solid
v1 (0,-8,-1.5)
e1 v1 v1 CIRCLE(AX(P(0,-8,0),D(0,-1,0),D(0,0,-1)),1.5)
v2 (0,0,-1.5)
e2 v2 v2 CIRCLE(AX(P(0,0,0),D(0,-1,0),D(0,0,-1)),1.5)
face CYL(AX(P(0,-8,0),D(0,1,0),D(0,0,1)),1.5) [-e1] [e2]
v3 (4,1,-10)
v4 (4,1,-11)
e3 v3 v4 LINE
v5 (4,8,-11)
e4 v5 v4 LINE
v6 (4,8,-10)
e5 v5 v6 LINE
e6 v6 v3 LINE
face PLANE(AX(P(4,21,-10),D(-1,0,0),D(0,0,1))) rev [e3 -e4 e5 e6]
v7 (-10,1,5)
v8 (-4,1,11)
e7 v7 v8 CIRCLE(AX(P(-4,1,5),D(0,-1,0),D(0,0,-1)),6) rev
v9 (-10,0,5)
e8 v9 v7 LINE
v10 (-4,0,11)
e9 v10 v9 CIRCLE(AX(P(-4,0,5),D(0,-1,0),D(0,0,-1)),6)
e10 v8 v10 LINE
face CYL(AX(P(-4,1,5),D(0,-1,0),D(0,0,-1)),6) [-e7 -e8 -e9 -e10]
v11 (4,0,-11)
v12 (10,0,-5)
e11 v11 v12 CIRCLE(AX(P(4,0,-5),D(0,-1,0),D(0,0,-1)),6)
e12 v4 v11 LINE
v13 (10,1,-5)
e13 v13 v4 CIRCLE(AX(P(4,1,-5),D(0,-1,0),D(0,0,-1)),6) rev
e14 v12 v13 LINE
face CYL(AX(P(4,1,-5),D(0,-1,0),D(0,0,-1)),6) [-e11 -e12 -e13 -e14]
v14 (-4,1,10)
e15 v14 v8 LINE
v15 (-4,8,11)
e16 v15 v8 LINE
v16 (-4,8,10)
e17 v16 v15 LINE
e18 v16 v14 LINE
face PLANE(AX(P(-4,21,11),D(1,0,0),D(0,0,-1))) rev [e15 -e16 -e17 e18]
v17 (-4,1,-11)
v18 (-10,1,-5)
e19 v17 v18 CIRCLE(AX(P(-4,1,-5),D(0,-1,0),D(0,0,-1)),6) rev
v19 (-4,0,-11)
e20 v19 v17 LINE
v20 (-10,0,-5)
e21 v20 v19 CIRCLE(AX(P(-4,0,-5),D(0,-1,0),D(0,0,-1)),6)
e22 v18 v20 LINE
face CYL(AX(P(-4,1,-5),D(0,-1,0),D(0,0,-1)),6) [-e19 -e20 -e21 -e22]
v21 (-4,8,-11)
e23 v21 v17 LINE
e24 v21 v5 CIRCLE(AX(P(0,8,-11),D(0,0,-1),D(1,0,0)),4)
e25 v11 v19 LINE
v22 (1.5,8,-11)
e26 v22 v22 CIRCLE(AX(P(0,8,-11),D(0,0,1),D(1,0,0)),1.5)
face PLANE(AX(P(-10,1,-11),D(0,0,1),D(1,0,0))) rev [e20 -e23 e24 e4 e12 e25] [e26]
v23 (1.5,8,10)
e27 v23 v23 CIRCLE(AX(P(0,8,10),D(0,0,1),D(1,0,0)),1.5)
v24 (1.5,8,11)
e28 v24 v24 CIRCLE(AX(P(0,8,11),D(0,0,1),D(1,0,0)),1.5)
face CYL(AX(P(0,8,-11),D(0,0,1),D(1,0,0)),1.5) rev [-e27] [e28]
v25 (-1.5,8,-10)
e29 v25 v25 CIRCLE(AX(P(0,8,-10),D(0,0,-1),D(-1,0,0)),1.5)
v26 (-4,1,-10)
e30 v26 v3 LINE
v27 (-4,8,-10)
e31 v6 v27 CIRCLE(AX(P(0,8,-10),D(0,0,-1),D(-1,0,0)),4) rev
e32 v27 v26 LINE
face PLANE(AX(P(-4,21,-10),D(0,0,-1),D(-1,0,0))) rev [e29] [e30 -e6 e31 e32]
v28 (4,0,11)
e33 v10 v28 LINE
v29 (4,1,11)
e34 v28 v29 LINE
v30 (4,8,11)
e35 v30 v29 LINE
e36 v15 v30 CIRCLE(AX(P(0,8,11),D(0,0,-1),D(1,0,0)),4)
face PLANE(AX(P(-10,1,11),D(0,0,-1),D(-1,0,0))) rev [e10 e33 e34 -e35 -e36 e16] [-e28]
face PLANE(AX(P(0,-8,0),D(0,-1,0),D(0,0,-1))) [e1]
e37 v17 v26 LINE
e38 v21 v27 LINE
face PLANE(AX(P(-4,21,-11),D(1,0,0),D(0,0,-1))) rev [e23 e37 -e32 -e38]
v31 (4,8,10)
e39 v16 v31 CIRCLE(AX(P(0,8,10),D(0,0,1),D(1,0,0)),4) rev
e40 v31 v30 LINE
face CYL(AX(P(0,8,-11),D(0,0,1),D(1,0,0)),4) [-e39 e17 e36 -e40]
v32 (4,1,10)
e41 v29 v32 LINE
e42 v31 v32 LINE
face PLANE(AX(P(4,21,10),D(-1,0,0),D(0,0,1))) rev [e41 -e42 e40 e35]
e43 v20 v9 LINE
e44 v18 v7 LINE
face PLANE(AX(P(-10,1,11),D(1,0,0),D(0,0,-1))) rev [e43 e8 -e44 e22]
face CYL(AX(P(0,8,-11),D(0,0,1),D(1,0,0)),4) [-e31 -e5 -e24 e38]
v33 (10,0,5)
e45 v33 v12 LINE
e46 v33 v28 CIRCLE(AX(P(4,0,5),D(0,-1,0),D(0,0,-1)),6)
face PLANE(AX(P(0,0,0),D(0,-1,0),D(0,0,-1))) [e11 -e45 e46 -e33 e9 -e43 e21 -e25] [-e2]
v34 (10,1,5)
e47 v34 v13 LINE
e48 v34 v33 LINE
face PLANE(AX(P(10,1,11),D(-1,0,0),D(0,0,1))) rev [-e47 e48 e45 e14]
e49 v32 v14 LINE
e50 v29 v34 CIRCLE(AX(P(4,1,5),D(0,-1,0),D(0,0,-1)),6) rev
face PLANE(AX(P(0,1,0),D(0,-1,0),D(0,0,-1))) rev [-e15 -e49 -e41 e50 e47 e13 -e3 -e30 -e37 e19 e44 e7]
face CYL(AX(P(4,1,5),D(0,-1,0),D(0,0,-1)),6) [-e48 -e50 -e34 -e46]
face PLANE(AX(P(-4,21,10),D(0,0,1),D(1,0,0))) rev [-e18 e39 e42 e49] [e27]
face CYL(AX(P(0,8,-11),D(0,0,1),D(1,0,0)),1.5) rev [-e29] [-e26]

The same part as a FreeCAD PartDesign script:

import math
import FreeCAD as App
import Part
import Sketcher

V = App.Vector


def edges_at(feature, points):
    """Names of the edges that pass closest to the given points."""
    edges = feature.Shape.Edges
    near = lambda p: min(range(len(edges)), key=lambda i: edges[i].distToShape(Part.Vertex(*p))[0])
    return sorted({f"Edge{near(p) + 1}" for p in points})

doc = App.newDocument("Part")
body = doc.addObject("PartDesign::Body", "Body")

# Sketch on XZ plane
sketch1 = body.newObject("Sketcher::SketchObject", "Sketch")
sketch1.AttachmentSupport = (doc.getObject("XZ_Plane"), [""])
sketch1.MapMode = "FlatFace"
sketch1.addGeometry(Part.LineSegment(V(-10, -11, 0), V(-10, 11, 0)), False)
sketch1.addGeometry(Part.LineSegment(V(-10, 11, 0), V(10, 11, 0)), False)
sketch1.addGeometry(Part.LineSegment(V(10, 11, 0), V(10, -11, 0)), False)
sketch1.addGeometry(Part.LineSegment(V(10, -11, 0), V(-10, -11, 0)), False)
sketch1.addConstraint(Sketcher.Constraint("Coincident", 0, 2, 1, 1))
sketch1.addConstraint(Sketcher.Constraint("Coincident", 1, 2, 2, 1))
sketch1.addConstraint(Sketcher.Constraint("Coincident", 2, 2, 3, 1))
sketch1.addConstraint(Sketcher.Constraint("Coincident", 3, 2, 0, 1))
sketch1.addConstraint(Sketcher.Constraint("Vertical", 0))
sketch1.addConstraint(Sketcher.Constraint("Horizontal", 1))
sketch1.addConstraint(Sketcher.Constraint("Vertical", 2))
sketch1.addConstraint(Sketcher.Constraint("Horizontal", 3))
sketch1.addConstraint(Sketcher.Constraint("Symmetric", 0, 2, 2, 2, -1, 1))
sketch1.addConstraint(Sketcher.Constraint("DistanceX", 1, 1, 1, 2, 20.0))
sketch1.addConstraint(Sketcher.Constraint("DistanceY", 0, 1, 0, 2, 22.0))
pad1 = body.newObject("PartDesign::Pad", "Pad")
pad1.Profile = sketch1
pad1.Length = 1
pad1.Reversed = True

# Sketch on XZ plane
sketch2 = body.newObject("Sketcher::SketchObject", "Sketch001")
sketch2.AttachmentSupport = (doc.getObject("XZ_Plane"), [""])
sketch2.MapMode = "FlatFace"
sketch2.AttachmentOffset = App.Placement(V(0, 0, -1), App.Rotation())
sketch2.addGeometry(Part.LineSegment(V(-4, 10, 0), V(-4, 11, 0)), False)
sketch2.addGeometry(Part.LineSegment(V(-4, 11, 0), V(4, 11, 0)), False)
sketch2.addGeometry(Part.LineSegment(V(4, 11, 0), V(4, 10, 0)), False)
sketch2.addGeometry(Part.LineSegment(V(4, 10, 0), V(-4, 10, 0)), False)
sketch2.addGeometry(Part.LineSegment(V(-4, -11, 0), V(-4, -10, 0)), False)
sketch2.addGeometry(Part.LineSegment(V(-4, -10, 0), V(4, -10, 0)), False)
sketch2.addGeometry(Part.LineSegment(V(4, -10, 0), V(4, -11, 0)), False)
sketch2.addGeometry(Part.LineSegment(V(4, -11, 0), V(-4, -11, 0)), False)
sketch2.addConstraint(Sketcher.Constraint("Coincident", 0, 2, 1, 1))
sketch2.addConstraint(Sketcher.Constraint("Coincident", 1, 2, 2, 1))
sketch2.addConstraint(Sketcher.Constraint("Coincident", 2, 2, 3, 1))
sketch2.addConstraint(Sketcher.Constraint("Coincident", 3, 2, 0, 1))
sketch2.addConstraint(Sketcher.Constraint("Coincident", 4, 2, 5, 1))
sketch2.addConstraint(Sketcher.Constraint("Coincident", 5, 2, 6, 1))
sketch2.addConstraint(Sketcher.Constraint("Coincident", 6, 2, 7, 1))
sketch2.addConstraint(Sketcher.Constraint("Coincident", 7, 2, 4, 1))
sketch2.addConstraint(Sketcher.Constraint("Vertical", 0))
sketch2.addConstraint(Sketcher.Constraint("Horizontal", 1))
sketch2.addConstraint(Sketcher.Constraint("Vertical", 2))
sketch2.addConstraint(Sketcher.Constraint("Horizontal", 3))
sketch2.addConstraint(Sketcher.Constraint("Vertical", 4))
sketch2.addConstraint(Sketcher.Constraint("Horizontal", 5))
sketch2.addConstraint(Sketcher.Constraint("Vertical", 6))
sketch2.addConstraint(Sketcher.Constraint("Horizontal", 7))
sketch2.addConstraint(Sketcher.Constraint("Symmetric", 2, 2, 4, 2, -1, 1))
sketch2.addConstraint(Sketcher.Constraint("Symmetric", 0, 2, 6, 2, -1, 1))
sketch2.addConstraint(Sketcher.Constraint("Vertical", 3, 2, 4, 2))
sketch2.addConstraint(Sketcher.Constraint("DistanceX", 1, 1, 1, 2, 8.0))
sketch2.addConstraint(Sketcher.Constraint("DistanceY", 0, 1, 0, 2, 1.0))
sketch2.addConstraint(Sketcher.Constraint("DistanceY", -1, 1, 0, 2, 11.0))
pad2 = body.newObject("PartDesign::Pad", "Pad001")
pad2.Profile = sketch2
pad2.Length = 20
pad2.Reversed = True

# Sketch on XY plane
sketch3 = body.newObject("Sketcher::SketchObject", "Sketch002")
sketch3.AttachmentSupport = (doc.getObject("XY_Plane"), [""])
sketch3.MapMode = "FlatFace"
sketch3.AttachmentOffset = App.Placement(V(0, 0, 11), App.Rotation())
sketch3.addGeometry(Part.Circle(V(0, 8, 0), V(0, 0, 1), 1.5), False)
sketch3.addGeometry(Part.LineSegment(V(-13.1, 8, 0), V(-4, 8, 0)), False)
sketch3.addGeometry(Part.ArcOfCircle(Part.Circle(V(0, 8, 0), V(0, 0, 1), 4), math.radians(0), math.radians(180)), False)
sketch3.addGeometry(Part.LineSegment(V(4, 8, 0), V(15.5, 8, 0)), False)
sketch3.addGeometry(Part.LineSegment(V(15.5, 8, 0), V(15.5, 28.6, 0)), False)
sketch3.addGeometry(Part.LineSegment(V(15.5, 28.6, 0), V(-13.1, 28.6, 0)), False)
sketch3.addGeometry(Part.LineSegment(V(-13.1, 28.6, 0), V(-13.1, 8, 0)), False)
sketch3.addConstraint(Sketcher.Constraint("Coincident", 1, 2, 2, 2))
sketch3.addConstraint(Sketcher.Constraint("Coincident", 2, 1, 3, 1))
sketch3.addConstraint(Sketcher.Constraint("Coincident", 3, 2, 4, 1))
sketch3.addConstraint(Sketcher.Constraint("Coincident", 4, 2, 5, 1))
sketch3.addConstraint(Sketcher.Constraint("Coincident", 5, 2, 6, 1))
sketch3.addConstraint(Sketcher.Constraint("Coincident", 6, 2, 1, 1))
sketch3.addConstraint(Sketcher.Constraint("Horizontal", 1))
sketch3.addConstraint(Sketcher.Constraint("Horizontal", 3))
sketch3.addConstraint(Sketcher.Constraint("Vertical", 4))
sketch3.addConstraint(Sketcher.Constraint("Horizontal", 5))
sketch3.addConstraint(Sketcher.Constraint("Vertical", 6))
sketch3.addConstraint(Sketcher.Constraint("Coincident", 2, 3, 0, 3))
sketch3.addConstraint(Sketcher.Constraint("Symmetric", 1, 2, 2, 1, -2))
sketch3.addConstraint(Sketcher.Constraint("Horizontal", 2, 3, 1, 2))
sketch3.addConstraint(Sketcher.Constraint("Diameter", 0, 3.0))
sketch3.addConstraint(Sketcher.Constraint("Radius", 2, 4.0))
sketch3.addConstraint(Sketcher.Constraint("DistanceY", -1, 1, 0, 3, 8.0))
sketch3.addConstraint(Sketcher.Constraint("DistanceX", 3, 1, 3, 2, 11.549722))
sketch3.addConstraint(Sketcher.Constraint("DistanceX", 5, 2, 5, 1, 28.631138))
sketch3.addConstraint(Sketcher.Constraint("DistanceY", 4, 1, 4, 2, 20.561512))
pocket1 = body.newObject("PartDesign::Pocket", "Pocket")
pocket1.Profile = sketch3
pocket1.Type = "ThroughAll"

# Sketch on XZ plane
sketch4 = body.newObject("Sketcher::SketchObject", "Sketch003")
sketch4.AttachmentSupport = (doc.getObject("XZ_Plane"), [""])
sketch4.MapMode = "FlatFace"
sketch4.addGeometry(Part.Circle(V(0, 0, 0), V(0, 0, 1), 1.5), False)
sketch4.addConstraint(Sketcher.Constraint("Coincident", 0, 3, -1, 1))
sketch4.addConstraint(Sketcher.Constraint("Diameter", 0, 3.0))
pad3 = body.newObject("PartDesign::Pad", "Pad002")
pad3.Profile = sketch4
pad3.Length = 8
doc.recompute()

fillet = body.newObject("PartDesign::Fillet", "Fillet")
fillet.Base = (pad3, edges_at(pad3, [
    (-10, 0.5, -11),
    (-10, 0.5, 11),
    (10, 0.5, -11),
    (10, 0.5, 11),
]))
fillet.Radius = 6

doc.recompute()
